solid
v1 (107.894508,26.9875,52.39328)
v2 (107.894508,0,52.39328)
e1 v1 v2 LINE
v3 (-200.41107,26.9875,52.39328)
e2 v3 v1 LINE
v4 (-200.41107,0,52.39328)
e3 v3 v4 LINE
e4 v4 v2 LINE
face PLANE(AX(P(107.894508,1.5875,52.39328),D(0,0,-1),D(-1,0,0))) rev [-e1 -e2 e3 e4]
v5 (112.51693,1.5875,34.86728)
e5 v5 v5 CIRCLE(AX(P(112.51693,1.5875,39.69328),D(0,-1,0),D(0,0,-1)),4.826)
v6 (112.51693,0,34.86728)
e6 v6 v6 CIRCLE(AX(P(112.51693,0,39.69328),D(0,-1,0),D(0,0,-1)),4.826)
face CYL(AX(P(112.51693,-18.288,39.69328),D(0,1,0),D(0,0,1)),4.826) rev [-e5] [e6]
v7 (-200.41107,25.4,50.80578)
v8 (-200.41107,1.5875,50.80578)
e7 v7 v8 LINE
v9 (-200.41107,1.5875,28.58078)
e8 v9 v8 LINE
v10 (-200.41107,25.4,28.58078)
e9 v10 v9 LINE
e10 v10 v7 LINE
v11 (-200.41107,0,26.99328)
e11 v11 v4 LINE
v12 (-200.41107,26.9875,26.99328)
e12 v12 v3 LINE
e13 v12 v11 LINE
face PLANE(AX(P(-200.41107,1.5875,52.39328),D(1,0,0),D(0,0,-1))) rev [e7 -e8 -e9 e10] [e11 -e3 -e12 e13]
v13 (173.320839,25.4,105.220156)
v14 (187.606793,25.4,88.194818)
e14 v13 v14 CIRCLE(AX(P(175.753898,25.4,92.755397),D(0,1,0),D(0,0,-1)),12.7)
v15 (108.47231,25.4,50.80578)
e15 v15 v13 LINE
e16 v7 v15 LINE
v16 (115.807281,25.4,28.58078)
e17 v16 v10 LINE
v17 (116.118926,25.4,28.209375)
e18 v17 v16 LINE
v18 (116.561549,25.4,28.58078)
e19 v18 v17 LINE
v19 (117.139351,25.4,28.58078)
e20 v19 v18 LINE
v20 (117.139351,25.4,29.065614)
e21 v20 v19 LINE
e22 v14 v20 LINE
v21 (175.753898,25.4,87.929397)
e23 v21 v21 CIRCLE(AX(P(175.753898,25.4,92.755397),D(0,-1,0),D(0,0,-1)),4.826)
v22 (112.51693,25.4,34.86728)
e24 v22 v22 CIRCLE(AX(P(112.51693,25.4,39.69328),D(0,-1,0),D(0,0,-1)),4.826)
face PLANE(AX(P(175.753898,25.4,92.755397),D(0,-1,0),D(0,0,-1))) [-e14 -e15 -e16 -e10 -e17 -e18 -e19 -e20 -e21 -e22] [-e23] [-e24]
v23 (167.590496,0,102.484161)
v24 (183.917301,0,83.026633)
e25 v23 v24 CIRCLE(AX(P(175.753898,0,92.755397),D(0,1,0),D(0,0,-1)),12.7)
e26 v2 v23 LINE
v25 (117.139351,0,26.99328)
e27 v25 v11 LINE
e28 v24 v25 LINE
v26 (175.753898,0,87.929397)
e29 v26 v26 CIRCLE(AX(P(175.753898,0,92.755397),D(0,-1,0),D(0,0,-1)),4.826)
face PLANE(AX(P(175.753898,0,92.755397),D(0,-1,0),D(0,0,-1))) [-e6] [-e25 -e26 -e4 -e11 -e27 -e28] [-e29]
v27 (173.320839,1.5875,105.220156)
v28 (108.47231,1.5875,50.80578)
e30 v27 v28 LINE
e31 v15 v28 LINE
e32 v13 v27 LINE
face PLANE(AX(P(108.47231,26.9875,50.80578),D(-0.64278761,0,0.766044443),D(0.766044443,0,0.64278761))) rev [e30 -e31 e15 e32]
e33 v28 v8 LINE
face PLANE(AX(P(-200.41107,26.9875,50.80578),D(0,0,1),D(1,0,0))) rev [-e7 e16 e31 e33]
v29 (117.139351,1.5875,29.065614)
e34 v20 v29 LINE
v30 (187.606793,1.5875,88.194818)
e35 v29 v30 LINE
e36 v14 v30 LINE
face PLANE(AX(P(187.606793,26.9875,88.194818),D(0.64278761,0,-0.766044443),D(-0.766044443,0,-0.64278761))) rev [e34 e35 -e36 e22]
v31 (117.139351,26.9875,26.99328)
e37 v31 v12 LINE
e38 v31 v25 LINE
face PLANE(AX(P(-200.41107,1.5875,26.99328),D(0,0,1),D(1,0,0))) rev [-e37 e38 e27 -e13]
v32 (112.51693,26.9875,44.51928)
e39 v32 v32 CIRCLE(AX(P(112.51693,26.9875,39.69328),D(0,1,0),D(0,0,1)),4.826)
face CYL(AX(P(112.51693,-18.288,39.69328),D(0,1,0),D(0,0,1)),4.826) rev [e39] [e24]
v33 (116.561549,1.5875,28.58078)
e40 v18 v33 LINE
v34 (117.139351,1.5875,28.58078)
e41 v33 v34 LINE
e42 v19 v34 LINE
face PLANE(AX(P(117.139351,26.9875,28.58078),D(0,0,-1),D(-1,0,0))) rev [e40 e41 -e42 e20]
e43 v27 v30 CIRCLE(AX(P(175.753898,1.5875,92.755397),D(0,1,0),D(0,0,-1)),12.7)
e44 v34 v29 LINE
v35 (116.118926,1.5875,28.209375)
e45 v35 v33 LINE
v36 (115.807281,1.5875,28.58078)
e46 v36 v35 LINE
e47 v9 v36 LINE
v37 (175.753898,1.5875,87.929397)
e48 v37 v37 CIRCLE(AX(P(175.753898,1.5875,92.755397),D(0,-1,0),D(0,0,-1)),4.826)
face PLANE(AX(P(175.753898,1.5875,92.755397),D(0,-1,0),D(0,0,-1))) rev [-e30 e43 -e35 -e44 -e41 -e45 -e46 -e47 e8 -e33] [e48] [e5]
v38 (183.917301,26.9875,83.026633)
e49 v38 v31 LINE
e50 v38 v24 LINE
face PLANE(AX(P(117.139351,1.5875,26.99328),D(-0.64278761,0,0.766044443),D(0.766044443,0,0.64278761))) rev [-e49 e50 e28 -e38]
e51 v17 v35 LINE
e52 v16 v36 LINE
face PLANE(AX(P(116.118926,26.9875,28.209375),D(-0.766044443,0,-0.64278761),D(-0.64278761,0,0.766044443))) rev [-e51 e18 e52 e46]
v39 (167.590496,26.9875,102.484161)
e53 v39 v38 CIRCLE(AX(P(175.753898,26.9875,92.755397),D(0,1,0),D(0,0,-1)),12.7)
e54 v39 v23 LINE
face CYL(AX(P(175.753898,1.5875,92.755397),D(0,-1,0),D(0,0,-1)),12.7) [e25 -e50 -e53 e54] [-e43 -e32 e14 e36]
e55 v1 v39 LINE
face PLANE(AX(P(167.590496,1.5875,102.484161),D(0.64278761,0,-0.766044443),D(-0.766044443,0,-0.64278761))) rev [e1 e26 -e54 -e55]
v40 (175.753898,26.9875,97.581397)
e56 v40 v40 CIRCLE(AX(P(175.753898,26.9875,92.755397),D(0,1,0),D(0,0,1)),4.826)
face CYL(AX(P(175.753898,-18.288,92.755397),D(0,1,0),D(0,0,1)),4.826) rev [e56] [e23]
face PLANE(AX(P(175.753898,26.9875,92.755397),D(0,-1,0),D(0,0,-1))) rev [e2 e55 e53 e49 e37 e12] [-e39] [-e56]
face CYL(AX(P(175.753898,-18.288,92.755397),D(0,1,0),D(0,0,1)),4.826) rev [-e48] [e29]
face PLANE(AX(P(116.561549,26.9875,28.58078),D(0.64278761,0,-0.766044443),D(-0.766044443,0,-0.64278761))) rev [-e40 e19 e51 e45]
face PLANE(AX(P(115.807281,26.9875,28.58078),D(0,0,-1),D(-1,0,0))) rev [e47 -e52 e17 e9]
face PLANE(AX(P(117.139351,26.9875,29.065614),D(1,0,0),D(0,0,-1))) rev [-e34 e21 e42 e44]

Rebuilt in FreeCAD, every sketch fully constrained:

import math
import FreeCAD as App
import Part
import Sketcher
from FreeCAD import Vector
Q = App.Units.Quantity

doc = App.newDocument("Part")
params = doc.addObject("Spreadsheet::Sheet", "Params")
for row, (alias, value) in enumerate([
    ("sketch1_radius", "0.5 in"),
    ("sketch1_height", "1 in"),
    ("pad1_length", "0.0625 in"),
    ("sketch2_radius", "0.5 in"),
    ("sketch2_height", "0.0625 in"),
    ("pad2_length", "1 in"),
    ("sketch3_radius", "0.5 in"),
    ("sketch3_height", "1 in"),
    ("pad3_length", "0.0625 in"),
    ("sketch4_diameter", "0.38 in"),
    ("pocket1_length", "1.7825 in"),
], start=1):
    params.set(f"A{row}", alias)
    params.set(f"B{row}", "=" + value)
    params.setAlias(f"B{row}", alias)

body = doc.addObject("PartDesign::Body", "Body")

sketch1 = body.newObject("Sketcher::SketchObject", "Sketch")
sketch1.AttachmentSupport = (doc.getObject("XZ_Plane"), [""])
sketch1.MapMode = "FlatFace"
sketch1.addGeometry(Part.LineSegment(Vector(108, 52, 0), Vector(168, 102, 0)), False)
sketch1.addGeometry(Part.ArcOfCircle(Part.Circle(Vector(176, 93, 0), Vector(0, 0, 1), 13), math.radians(-50), math.radians(130)), False)
sketch1.addGeometry(Part.LineSegment(Vector(184, 83, 0), Vector(117, 27, 0)), False)
sketch1.addGeometry(Part.LineSegment(Vector(117, 27, 0), Vector(-200, 27, 0)), False)
sketch1.addGeometry(Part.LineSegment(Vector(-200, 27, 0), Vector(-200, 52, 0)), False)
sketch1.addGeometry(Part.LineSegment(Vector(-200, 52, 0), Vector(108, 52, 0)), False)
sketch1.addConstraint(Sketcher.Constraint("Tangent", 0, 2, 1, 2))
sketch1.addConstraint(Sketcher.Constraint("Tangent", 1, 1, 2, 1))
sketch1.addConstraint(Sketcher.Constraint("Coincident", 2, 2, 3, 1))
sketch1.addConstraint(Sketcher.Constraint("Coincident", 3, 2, 4, 1))
sketch1.addConstraint(Sketcher.Constraint("Coincident", 4, 2, 5, 1))
sketch1.addConstraint(Sketcher.Constraint("Coincident", 5, 2, 0, 1))
sketch1.addConstraint(Sketcher.Constraint("Horizontal", 3))
sketch1.addConstraint(Sketcher.Constraint("Vertical", 4))
sketch1.addConstraint(Sketcher.Constraint("Horizontal", 5))
sketch1.addConstraint(Sketcher.Constraint("Parallel", 0, 2))
sketch1.addConstraint(Sketcher.Constraint("Radius", 1, Q("0.5 in")))
sketch1.addConstraint(Sketcher.Constraint("DistanceY", 4, 1, 4, 2, Q("1 in")))
sketch1.addConstraint(Sketcher.Constraint("Angle", 0, Q("40 deg")))
sketch1.addConstraint(Sketcher.Constraint("DistanceX", 3, 2, 3, 1, Q("317.550422 mm")))
sketch1.addConstraint(Sketcher.Constraint("DistanceX", -1, 1, 1, 3, Q("175.753898 mm")))
sketch1.addConstraint(Sketcher.Constraint("Distance", 0, Q("77.927578 mm")))
sketch1.addConstraint(Sketcher.Constraint("DistanceY", -1, 1, 0, 2, Q("102.484161 mm")))
sketch1.setExpression("Constraints[10]", "Params.sketch1_radius")
sketch1.setExpression("Constraints[11]", "Params.sketch1_height")
pad1 = body.newObject("PartDesign::Pad", "Pad")
pad1.Profile = sketch1
pad1.setExpression("Length", "Params.pad1_length")
pad1.Reversed = True

sketch2 = body.newObject("Sketcher::SketchObject", "Sketch001")
sketch2.AttachmentSupport = (doc.getObject("XZ_Plane"), [""])
sketch2.MapMode = "FlatFace"
sketch2.AttachmentOffset = App.Placement(Vector(0, 0, -0.0625 * 25.4), App.Rotation())
sketch2.addGeometry(Part.LineSegment(Vector(117.14, 29.07, 0), Vector(187.61, 88.19, 0)), False)
sketch2.addGeometry(Part.ArcOfCircle(Part.Circle(Vector(175.75, 92.76, 0), Vector(0, 0, 1), 12.7), math.radians(-50), math.radians(-21)), False)
sketch2.addGeometry(Part.LineSegment(Vector(183.92, 83.03, 0), Vector(117.14, 26.99, 0)), False)
sketch2.addGeometry(Part.LineSegment(Vector(117.14, 26.99, 0), Vector(-200.41, 26.99, 0)), False)
sketch2.addGeometry(Part.LineSegment(Vector(-200.41, 26.99, 0), Vector(-200.41, 28.58, 0)), False)
sketch2.addGeometry(Part.LineSegment(Vector(-200.41, 28.58, 0), Vector(115.81, 28.58, 0)), False)
sketch2.addGeometry(Part.LineSegment(Vector(115.81, 28.58, 0), Vector(116.12, 28.21, 0)), False)
sketch2.addGeometry(Part.LineSegment(Vector(116.12, 28.21, 0), Vector(116.56, 28.58, 0)), False)
sketch2.addGeometry(Part.LineSegment(Vector(116.56, 28.58, 0), Vector(117.14, 28.58, 0)), False)
sketch2.addGeometry(Part.LineSegment(Vector(117.14, 28.58, 0), Vector(117.14, 29.07, 0)), False)
sketch2.addGeometry(Part.LineSegment(Vector(-200.41, 50.81, 0), Vector(-200.41, 52.39, 0)), False)
sketch2.addGeometry(Part.LineSegment(Vector(-200.41, 52.39, 0), Vector(107.89, 52.39, 0)), False)
sketch2.addGeometry(Part.LineSegment(Vector(107.89, 52.39, 0), Vector(167.59, 102.48, 0)), False)
sketch2.addGeometry(Part.ArcOfCircle(Part.Circle(Vector(175.75, 92.76, 0), Vector(0, 0, 1), 12.7), math.radians(101), math.radians(130)), False)
sketch2.addGeometry(Part.LineSegment(Vector(173.32, 105.22, 0), Vector(108.47, 50.81, 0)), False)
sketch2.addGeometry(Part.LineSegment(Vector(108.47, 50.81, 0), Vector(-200.41, 50.81, 0)), False)
sketch2.addConstraint(Sketcher.Constraint("Coincident", 0, 2, 1, 2))
sketch2.addConstraint(Sketcher.Constraint("Tangent", 1, 1, 2, 1))
sketch2.addConstraint(Sketcher.Constraint("Coincident", 2, 2, 3, 1))
sketch2.addConstraint(Sketcher.Constraint("Coincident", 3, 2, 4, 1))
sketch2.addConstraint(Sketcher.Constraint("Coincident", 4, 2, 5, 1))
sketch2.addConstraint(Sketcher.Constraint("Coincident", 5, 2, 6, 1))
sketch2.addConstraint(Sketcher.Constraint("Coincident", 6, 2, 7, 1))
sketch2.addConstraint(Sketcher.Constraint("Coincident", 7, 2, 8, 1))
sketch2.addConstraint(Sketcher.Constraint("Coincident", 8, 2, 9, 1))
sketch2.addConstraint(Sketcher.Constraint("Coincident", 9, 2, 0, 1))
sketch2.addConstraint(Sketcher.Constraint("Coincident", 10, 2, 11, 1))
sketch2.addConstraint(Sketcher.Constraint("Coincident", 11, 2, 12, 1))
sketch2.addConstraint(Sketcher.Constraint("Tangent", 12, 2, 13, 2))
sketch2.addConstraint(Sketcher.Constraint("Coincident", 13, 1, 14, 1))
sketch2.addConstraint(Sketcher.Constraint("Coincident", 14, 2, 15, 1))
sketch2.addConstraint(Sketcher.Constraint("Coincident", 15, 2, 10, 1))
sketch2.addConstraint(Sketcher.Constraint("Horizontal", 3))
sketch2.addConstraint(Sketcher.Constraint("Vertical", 4))
sketch2.addConstraint(Sketcher.Constraint("Horizontal", 5))
sketch2.addConstraint(Sketcher.Constraint("Horizontal", 8))
sketch2.addConstraint(Sketcher.Constraint("Vertical", 9))
sketch2.addConstraint(Sketcher.Constraint("Vertical", 10))
sketch2.addConstraint(Sketcher.Constraint("Horizontal", 11))
sketch2.addConstraint(Sketcher.Constraint("Horizontal", 15))
sketch2.addConstraint(Sketcher.Constraint("Coincident", 13, 3, 1, 3))
sketch2.addConstraint(Sketcher.Constraint("Equal", 1, 13))
sketch2.addConstraint(Sketcher.Constraint("Parallel", 0, 2))
sketch2.addConstraint(Sketcher.Constraint("Perpendicular", 2, 6))
sketch2.addConstraint(Sketcher.Constraint("Perpendicular", 6, 7))
sketch2.addConstraint(Sketcher.Constraint("Parallel", 7, 12))
sketch2.addConstraint(Sketcher.Constraint("Parallel", 12, 14))
sketch2.addConstraint(Sketcher.Constraint("Horizontal", 5, 2, 7, 2))
sketch2.addConstraint(Sketcher.Constraint("Vertical", 2, 2, 8, 2))
sketch2.addConstraint(Sketcher.Constraint("Vertical", 4, 2, 10, 2))
sketch2.addConstraint(Sketcher.Constraint("Equal", 4, 10))
sketch2.addConstraint(Sketcher.Constraint("Radius", 1, Q("0.5 in")))
sketch2.addConstraint(Sketcher.Constraint("Angle", 0, Q("40 deg")))
sketch2.addConstraint(Sketcher.Constraint("DistanceY", 3, 2, 10, 2, Q("1 in")))
sketch2.addConstraint(Sketcher.Constraint("DistanceY", 4, 1, 4, 2, Q("0.0625 in")))
sketch2.addConstraint(Sketcher.Constraint("DistanceX", 3, 2, 3, 1, Q("317.550422 mm")))
sketch2.addConstraint(Sketcher.Constraint("DistanceX", 5, 1, 5, 2, Q("316.218351 mm")))
sketch2.addConstraint(Sketcher.Constraint("DistanceX", 15, 2, 15, 1, Q("308.883381 mm")))
sketch2.addConstraint(Sketcher.Constraint("DistanceX", -1, 1, 1, 3, Q("175.753898 mm")))
sketch2.addConstraint(Sketcher.Constraint("Distance", 2, Q("87.172422 mm")))
sketch2.addConstraint(Sketcher.Constraint("DistanceX", 8, 1, 8, 2, Q("0.577803 mm")))
sketch2.addConstraint(Sketcher.Constraint("DistanceY", 9, 1, 9, 2, Q("0.484834 mm")))
sketch2.addConstraint(Sketcher.Constraint("DistanceY", -1, 1, 0, 2, Q("88.194818 mm")))
sketch2.setExpression("Constraints[35]", "Params.sketch2_radius")
sketch2.setExpression("Constraints[38]", "Params.sketch2_height")
pad2 = body.newObject("PartDesign::Pad", "Pad001")
pad2.Profile = sketch2
pad2.setExpression("Length", "Params.pad2_length")
pad2.Reversed = True

sketch3 = body.newObject("Sketcher::SketchObject", "Sketch002")
sketch3.AttachmentSupport = (doc.getObject("XZ_Plane"), [""])
sketch3.MapMode = "FlatFace"
sketch3.AttachmentOffset = App.Placement(Vector(0, 0, -1 * 25.4), App.Rotation())
sketch3.addGeometry(Part.LineSegment(Vector(117, 27, 0), Vector(-200, 27, 0)), False)
sketch3.addGeometry(Part.LineSegment(Vector(-200, 27, 0), Vector(-200, 52, 0)), False)
sketch3.addGeometry(Part.LineSegment(Vector(-200, 52, 0), Vector(108, 52, 0)), False)
sketch3.addGeometry(Part.LineSegment(Vector(108, 52, 0), Vector(168, 102, 0)), False)
sketch3.addGeometry(Part.ArcOfCircle(Part.Circle(Vector(176, 93, 0), Vector(0, 0, 1), 13), math.radians(-50), math.radians(130)), False)
sketch3.addGeometry(Part.LineSegment(Vector(184, 83, 0), Vector(117, 27, 0)), False)
sketch3.addConstraint(Sketcher.Constraint("Coincident", 0, 2, 1, 1))
sketch3.addConstraint(Sketcher.Constraint("Coincident", 1, 2, 2, 1))
sketch3.addConstraint(Sketcher.Constraint("Coincident", 2, 2, 3, 1))
sketch3.addConstraint(Sketcher.Constraint("Tangent", 3, 2, 4, 2))
sketch3.addConstraint(Sketcher.Constraint("Tangent", 4, 1, 5, 1))
sketch3.addConstraint(Sketcher.Constraint("Coincident", 5, 2, 0, 1))
sketch3.addConstraint(Sketcher.Constraint("Horizontal", 0))
sketch3.addConstraint(Sketcher.Constraint("Vertical", 1))
sketch3.addConstraint(Sketcher.Constraint("Horizontal", 2))
sketch3.addConstraint(Sketcher.Constraint("Parallel", 3, 5))
sketch3.addConstraint(Sketcher.Constraint("Radius", 4, Q("0.5 in")))
sketch3.addConstraint(Sketcher.Constraint("DistanceY", 1, 1, 1, 2, Q("1 in")))
sketch3.addConstraint(Sketcher.Constraint("Angle", 3, Q("40 deg")))
sketch3.addConstraint(Sketcher.Constraint("DistanceX", 0, 2, 0, 1, Q("317.550422 mm")))
sketch3.addConstraint(Sketcher.Constraint("DistanceX", -1, 1, 4, 3, Q("175.753898 mm")))
sketch3.addConstraint(Sketcher.Constraint("Distance", 3, Q("77.927578 mm")))
sketch3.addConstraint(Sketcher.Constraint("DistanceY", -1, 1, 0, 2, Q("26.99328 mm")))
sketch3.setExpression("Constraints[10]", "Params.sketch3_radius")
sketch3.setExpression("Constraints[11]", "Params.sketch3_height")
pad3 = body.newObject("PartDesign::Pad", "Pad002")
pad3.Profile = sketch3
pad3.setExpression("Length", "Params.pad3_length")
pad3.Reversed = True

sketch4 = body.newObject("Sketcher::SketchObject", "Sketch003")
sketch4.AttachmentSupport = (doc.getObject("XZ_Plane"), [""])
sketch4.MapMode = "FlatFace"
sketch4.AttachmentOffset = App.Placement(Vector(0, 0, -1.0625 * 25.4), App.Rotation())
sketch4.addGeometry(Part.Circle(Vector(175.8, 92.8, 0), Vector(0, 0, 1), 4.8), False)
sketch4.addGeometry(Part.Circle(Vector(112.5, 39.7, 0), Vector(0, 0, 1), 4.8), False)
sketch4.addConstraint(Sketcher.Constraint("Equal", 0, 1))
sketch4.addConstraint(Sketcher.Constraint("Diameter", 0, Q("0.38 in")))
sketch4.addConstraint(Sketcher.Constraint("DistanceX", -1, 1, 0, 3, Q("175.753898 mm")))
sketch4.addConstraint(Sketcher.Constraint("DistanceX", -1, 1, 1, 3, Q("112.51693 mm")))
sketch4.addConstraint(Sketcher.Constraint("DistanceY", -1, 1, 1, 3, Q("39.69328 mm")))
sketch4.addConstraint(Sketcher.Constraint("DistanceY", -1, 1, 0, 3, Q("92.755397 mm")))
sketch4.setExpression("Constraints[1]", "Params.sketch4_diameter")
pocket1 = body.newObject("PartDesign::Pocket", "Pocket")
pocket1.Profile = sketch4
pocket1.setExpression("Length", "Params.pocket1_length")
pocket1.Reversed = True

doc.recompute()
